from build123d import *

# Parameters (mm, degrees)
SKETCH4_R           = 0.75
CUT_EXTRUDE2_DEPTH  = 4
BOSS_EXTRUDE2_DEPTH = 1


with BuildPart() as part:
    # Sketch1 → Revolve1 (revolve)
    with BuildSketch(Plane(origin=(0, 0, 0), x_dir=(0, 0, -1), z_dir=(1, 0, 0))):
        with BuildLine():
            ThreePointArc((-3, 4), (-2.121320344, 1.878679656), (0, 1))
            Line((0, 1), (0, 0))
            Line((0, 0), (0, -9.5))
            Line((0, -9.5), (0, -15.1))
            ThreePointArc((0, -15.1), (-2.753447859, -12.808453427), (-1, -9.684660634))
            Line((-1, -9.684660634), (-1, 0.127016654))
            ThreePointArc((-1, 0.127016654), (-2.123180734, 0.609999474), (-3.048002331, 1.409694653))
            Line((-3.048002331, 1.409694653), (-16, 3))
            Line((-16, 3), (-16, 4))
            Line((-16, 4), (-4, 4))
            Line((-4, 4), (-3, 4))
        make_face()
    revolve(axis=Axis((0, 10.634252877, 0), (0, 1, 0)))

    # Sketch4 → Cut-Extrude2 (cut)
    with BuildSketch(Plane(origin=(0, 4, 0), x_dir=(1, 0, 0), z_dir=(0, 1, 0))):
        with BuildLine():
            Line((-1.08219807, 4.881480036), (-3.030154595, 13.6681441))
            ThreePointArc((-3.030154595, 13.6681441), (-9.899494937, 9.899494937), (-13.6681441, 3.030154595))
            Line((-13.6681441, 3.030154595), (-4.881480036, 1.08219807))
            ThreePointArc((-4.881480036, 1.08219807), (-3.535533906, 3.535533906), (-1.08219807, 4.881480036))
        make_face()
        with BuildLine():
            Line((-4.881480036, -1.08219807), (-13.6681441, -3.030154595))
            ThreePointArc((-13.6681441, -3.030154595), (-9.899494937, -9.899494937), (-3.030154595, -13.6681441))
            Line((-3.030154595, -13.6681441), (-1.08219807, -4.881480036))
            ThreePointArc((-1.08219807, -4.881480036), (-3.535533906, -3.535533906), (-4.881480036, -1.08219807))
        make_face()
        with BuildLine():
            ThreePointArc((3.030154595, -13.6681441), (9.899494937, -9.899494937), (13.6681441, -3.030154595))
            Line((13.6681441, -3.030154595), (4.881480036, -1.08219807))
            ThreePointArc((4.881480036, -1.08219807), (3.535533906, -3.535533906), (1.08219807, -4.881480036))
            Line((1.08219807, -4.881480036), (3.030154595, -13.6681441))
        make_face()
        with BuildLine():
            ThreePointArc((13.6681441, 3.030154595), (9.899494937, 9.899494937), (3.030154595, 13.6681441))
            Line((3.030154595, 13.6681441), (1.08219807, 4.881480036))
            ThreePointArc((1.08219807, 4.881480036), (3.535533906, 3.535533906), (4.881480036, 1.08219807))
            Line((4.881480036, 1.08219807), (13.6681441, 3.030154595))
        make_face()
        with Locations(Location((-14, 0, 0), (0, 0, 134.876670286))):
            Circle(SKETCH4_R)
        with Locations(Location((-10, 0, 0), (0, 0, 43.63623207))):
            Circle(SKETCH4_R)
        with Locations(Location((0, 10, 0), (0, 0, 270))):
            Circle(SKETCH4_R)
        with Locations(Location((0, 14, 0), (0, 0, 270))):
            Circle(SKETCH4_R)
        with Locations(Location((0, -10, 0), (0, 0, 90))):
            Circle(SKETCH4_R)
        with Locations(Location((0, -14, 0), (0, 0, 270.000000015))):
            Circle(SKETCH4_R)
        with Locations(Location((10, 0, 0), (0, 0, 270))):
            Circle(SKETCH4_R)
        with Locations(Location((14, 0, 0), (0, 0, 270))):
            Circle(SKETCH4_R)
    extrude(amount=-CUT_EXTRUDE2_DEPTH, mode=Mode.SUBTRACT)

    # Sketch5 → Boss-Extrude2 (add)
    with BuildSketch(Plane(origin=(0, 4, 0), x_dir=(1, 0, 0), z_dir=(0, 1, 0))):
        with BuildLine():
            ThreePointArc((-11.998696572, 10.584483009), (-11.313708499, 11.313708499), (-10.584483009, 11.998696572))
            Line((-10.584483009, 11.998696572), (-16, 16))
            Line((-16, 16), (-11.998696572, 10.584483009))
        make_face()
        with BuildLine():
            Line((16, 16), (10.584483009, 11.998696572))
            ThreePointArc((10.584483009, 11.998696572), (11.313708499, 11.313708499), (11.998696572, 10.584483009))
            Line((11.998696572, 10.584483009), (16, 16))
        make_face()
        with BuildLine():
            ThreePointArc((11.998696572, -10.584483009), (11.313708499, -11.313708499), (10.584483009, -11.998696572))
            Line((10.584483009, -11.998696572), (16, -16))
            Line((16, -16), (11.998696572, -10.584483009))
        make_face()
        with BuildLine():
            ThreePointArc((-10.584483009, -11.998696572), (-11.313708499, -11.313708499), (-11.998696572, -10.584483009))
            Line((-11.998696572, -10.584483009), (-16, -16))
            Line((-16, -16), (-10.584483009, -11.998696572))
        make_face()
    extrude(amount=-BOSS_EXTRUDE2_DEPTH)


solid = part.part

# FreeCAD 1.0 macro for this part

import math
import FreeCAD as App
import Part
import Sketcher
from FreeCAD import Vector
Q = App.Units.Quantity

doc = App.newDocument("Part")
body = doc.addObject("PartDesign::Body", "Body")

sketch1 = doc.addObject("Sketcher::SketchObject", "Sketch")
body.addObject(sketch1)
sketch1.AttachmentSupport = (doc.YZ_Plane, [""])
sketch1.MapMode = "FlatFace"
sketch1.addGeometry(Part.ArcOfCircle(Part.Circle(Vector(4, 0, 0), Vector(0, 0, 1), 3), math.radians(90), math.radians(180)), False)
sketch1.addGeometry(Part.LineSegment(Vector(4, 3, 0), Vector(4, 16, 0)), False)
sketch1.addGeometry(Part.LineSegment(Vector(4, 16, 0), Vector(3, 16, 0)), False)
sketch1.addGeometry(Part.LineSegment(Vector(3, 16, 0), Vector(1.409695, 3.048002, 0)), False)
sketch1.addGeometry(Part.ArcOfCircle(Part.Circle(Vector(4, 0, 0), Vector(0, 0, 1), 4), math.radians(130.359116), math.radians(165.522488)), False)
sketch1.addGeometry(Part.LineSegment(Vector(0.127017, 1, 0), Vector(-9.684661, 1, 0)), False)
sketch1.addGeometry(Part.ArcOfCircle(Part.Circle(Vector(-12.3, 0, 0), Vector(0, 0, 1), 2.8), math.radians(20.924832), math.radians(180)), False)
sketch1.addGeometry(Part.LineSegment(Vector(-15.1, 0, 0), Vector(1, 0, 0)), False)
sketch1.addConstraint(Sketcher.Constraint("Coincident", 0, 1, 1, 1))
sketch1.addConstraint(Sketcher.Constraint("Coincident", 1, 2, 2, 1))
sketch1.addConstraint(Sketcher.Constraint("Coincident", 2, 2, 3, 1))
sketch1.addConstraint(Sketcher.Constraint("Coincident", 3, 2, 4, 1))
sketch1.addConstraint(Sketcher.Constraint("Coincident", 4, 2, 5, 1))
sketch1.addConstraint(Sketcher.Constraint("Coincident", 5, 2, 6, 1))
sketch1.addConstraint(Sketcher.Constraint("Coincident", 6, 2, 7, 1))
sketch1.addConstraint(Sketcher.Constraint("Coincident", 7, 2, 0, 2))
sketch1.addConstraint(Sketcher.Constraint("Vertical", 1))
sketch1.addConstraint(Sketcher.Constraint("Horizontal", 2))
sketch1.addConstraint(Sketcher.Constraint("Horizontal", 5))
sketch1.addConstraint(Sketcher.Constraint("Horizontal", 7))
sketch1.addConstraint(Sketcher.Constraint("Coincident", 4, 3, 0, 3))
sketch1.addConstraint(Sketcher.Constraint("PointOnObject", 0, 3, -1))
sketch1.addConstraint(Sketcher.Constraint("PointOnObject", 6, 3, -1))
sketch1.addConstraint(Sketcher.Constraint("PointOnObject", 6, 2, -1))
sketch1.addConstraint(Sketcher.Constraint("Vertical", 4, 3, 0, 1))
sketch1.addConstraint(Sketcher.Constraint("Radius", 0, 3.0))
sketch1.addConstraint(Sketcher.Constraint("Radius", 4, 4.0))
sketch1.addConstraint(Sketcher.Constraint("Radius", 6, 2.8))
sketch1.addConstraint(Sketcher.Constraint("DistanceX", 2, 2, 2, 1, 1.0))
sketch1.addConstraint(Sketcher.Constraint("DistanceY", 1, 1, 1, 2, 13.0))
sketch1.addConstraint(Sketcher.Constraint("Angle", 3, Q("-97 deg")))
sketch1.addConstraint(Sketcher.Constraint("DistanceX", 7, 1, 7, 2, 16.1))
sketch1.addConstraint(Sketcher.Constraint("DistanceX", -1, 1, 0, 3, 4.0))
sketch1.addConstraint(Sketcher.Constraint("DistanceY", -1, 1, 4, 2, 1.0))
revolution = doc.addObject("PartDesign::Revolution", "Revolution")
body.addObject(revolution)
revolution.Profile = sketch1
revolution.ReferenceAxis = (sketch1, ["H_Axis"])
revolution.Angle = 360

sketch2 = doc.addObject("Sketcher::SketchObject", "Sketch001")
body.addObject(sketch2)
sketch2.AttachmentSupport = (doc.XZ_Plane, [""])
sketch2.MapMode = "FlatFace"
sketch2.AttachmentOffset = App.Placement(Vector(0, 0, -4), App.Rotation())
sketch2.addGeometry(Part.LineSegment(Vector(-1.082198, -4.88148, 0), Vector(-3.030155, -13.668144, 0)), False)
sketch2.addGeometry(Part.ArcOfCircle(Part.Circle(Vector(0, 0, 0), Vector(0, 0, 1), 14), math.radians(-167.5), math.radians(-102.5)), False)
sketch2.addGeometry(Part.LineSegment(Vector(-13.668144, -3.030155, 0), Vector(-4.88148, -1.082198, 0)), False)
sketch2.addGeometry(Part.ArcOfCircle(Part.Circle(Vector(0, 0, 0), Vector(0, 0, 1), 5), math.radians(-167.5), math.radians(-102.5)), False)
sketch2.addGeometry(Part.LineSegment(Vector(-4.88148, 1.082198, 0), Vector(-13.668144, 3.030155, 0)), False)
sketch2.addGeometry(Part.ArcOfCircle(Part.Circle(Vector(0, 0, 0), Vector(0, 0, 1), 14), math.radians(102.5), math.radians(167.5)), False)
sketch2.addGeometry(Part.LineSegment(Vector(-3.030155, 13.668144, 0), Vector(-1.082198, 4.88148, 0)), False)
sketch2.addGeometry(Part.ArcOfCircle(Part.Circle(Vector(0, 0, 0), Vector(0, 0, 1), 5), math.radians(102.5), math.radians(167.5)), False)
sketch2.addGeometry(Part.ArcOfCircle(Part.Circle(Vector(0, 0, 0), Vector(0, 0, 1), 14), math.radians(12.5), math.radians(77.5)), False)
sketch2.addGeometry(Part.LineSegment(Vector(13.668144, 3.030155, 0), Vector(4.88148, 1.082198, 0)), False)
sketch2.addGeometry(Part.ArcOfCircle(Part.Circle(Vector(0, 0, 0), Vector(0, 0, 1), 5), math.radians(12.5), math.radians(77.5)), False)
sketch2.addGeometry(Part.LineSegment(Vector(1.082198, 4.88148, 0), Vector(3.030155, 13.668144, 0)), False)
sketch2.addGeometry(Part.ArcOfCircle(Part.Circle(Vector(0, 0, 0), Vector(0, 0, 1), 14), math.radians(-77.5), math.radians(-12.5)), False)
sketch2.addGeometry(Part.LineSegment(Vector(3.030155, -13.668144, 0), Vector(1.082198, -4.88148, 0)), False)
sketch2.addGeometry(Part.ArcOfCircle(Part.Circle(Vector(0, 0, 0), Vector(0, 0, 1), 5), math.radians(-77.5), math.radians(-12.5)), False)
sketch2.addGeometry(Part.LineSegment(Vector(4.88148, -1.082198, 0), Vector(13.668144, -3.030155, 0)), False)
sketch2.addGeometry(Part.Circle(Vector(-14, 0, 0), Vector(0, 0, 1), 0.75), False)
sketch2.addGeometry(Part.Circle(Vector(-10, 0, 0), Vector(0, 0, 1), 0.75), False)
sketch2.addGeometry(Part.Circle(Vector(0, -10, 0), Vector(0, 0, 1), 0.75), False)
sketch2.addGeometry(Part.Circle(Vector(0, -14, 0), Vector(0, 0, 1), 0.75), False)
sketch2.addGeometry(Part.Circle(Vector(0, 10, 0), Vector(0, 0, 1), 0.75), False)
sketch2.addGeometry(Part.Circle(Vector(0, 14, 0), Vector(0, 0, 1), 0.75), False)
sketch2.addGeometry(Part.Circle(Vector(10, 0, 0), Vector(0, 0, 1), 0.75), False)
sketch2.addGeometry(Part.Circle(Vector(14, 0, 0), Vector(0, 0, 1), 0.75), False)
sketch2.addConstraint(Sketcher.Constraint("Coincident", 0, 2, 1, 2))
sketch2.addConstraint(Sketcher.Constraint("Coincident", 1, 1, 2, 1))
sketch2.addConstraint(Sketcher.Constraint("Coincident", 2, 2, 3, 1))
sketch2.addConstraint(Sketcher.Constraint("Coincident", 3, 2, 0, 1))
sketch2.addConstraint(Sketcher.Constraint("Coincident", 4, 2, 5, 2))
sketch2.addConstraint(Sketcher.Constraint("Coincident", 5, 1, 6, 1))
sketch2.addConstraint(Sketcher.Constraint("Coincident", 6, 2, 7, 1))
sketch2.addConstraint(Sketcher.Constraint("Coincident", 7, 2, 4, 1))
sketch2.addConstraint(Sketcher.Constraint("Coincident", 8, 1, 9, 1))
sketch2.addConstraint(Sketcher.Constraint("Coincident", 9, 2, 10, 1))
sketch2.addConstraint(Sketcher.Constraint("Coincident", 10, 2, 11, 1))
sketch2.addConstraint(Sketcher.Constraint("Coincident", 11, 2, 8, 2))
sketch2.addConstraint(Sketcher.Constraint("Coincident", 12, 1, 13, 1))
sketch2.addConstraint(Sketcher.Constraint("Coincident", 13, 2, 14, 1))
sketch2.addConstraint(Sketcher.Constraint("Coincident", 14, 2, 15, 1))
sketch2.addConstraint(Sketcher.Constraint("Coincident", 15, 2, 12, 2))
sketch2.addConstraint(Sketcher.Constraint("Coincident", 1, 3, -1, 1))
sketch2.addConstraint(Sketcher.Constraint("Coincident", 3, 3, -1, 1))
sketch2.addConstraint(Sketcher.Constraint("Coincident", 5, 3, -1, 1))
sketch2.addConstraint(Sketcher.Constraint("Coincident", 7, 3, -1, 1))
sketch2.addConstraint(Sketcher.Constraint("Coincident", 8, 3, -1, 1))
sketch2.addConstraint(Sketcher.Constraint("Coincident", 10, 3, -1, 1))
sketch2.addConstraint(Sketcher.Constraint("Coincident", 12, 3, -1, 1))
sketch2.addConstraint(Sketcher.Constraint("Coincident", 14, 3, -1, 1))
sketch2.addConstraint(Sketcher.Constraint("Equal", 1, 5))
sketch2.addConstraint(Sketcher.Constraint("Equal", 3, 7))
sketch2.addConstraint(Sketcher.Constraint("Equal", 5, 8))
sketch2.addConstraint(Sketcher.Constraint("Equal", 7, 10))
sketch2.addConstraint(Sketcher.Constraint("Equal", 8, 12))
sketch2.addConstraint(Sketcher.Constraint("Equal", 10, 14))
sketch2.addConstraint(Sketcher.Constraint("Equal", 16, 17))
sketch2.addConstraint(Sketcher.Constraint("Equal", 17, 18))
sketch2.addConstraint(Sketcher.Constraint("Equal", 18, 19))
sketch2.addConstraint(Sketcher.Constraint("Equal", 19, 20))
sketch2.addConstraint(Sketcher.Constraint("Equal", 20, 21))
sketch2.addConstraint(Sketcher.Constraint("Equal", 21, 22))
sketch2.addConstraint(Sketcher.Constraint("Equal", 22, 23))
sketch2.addConstraint(Sketcher.Constraint("Symmetric", 18, 3, 20, 3, -1, 1))
sketch2.addConstraint(Sketcher.Constraint("Symmetric", 19, 3, 21, 3, -1, 1))
sketch2.addConstraint(Sketcher.Constraint("Symmetric", 17, 3, 22, 3, -1, 1))
sketch2.addConstraint(Sketcher.Constraint("Symmetric", 16, 3, 23, 3, -1, 1))
sketch2.addConstraint(Sketcher.Constraint("PointOnObject", 16, 3, -1))
sketch2.addConstraint(Sketcher.Constraint("PointOnObject", 17, 3, -1))
sketch2.addConstraint(Sketcher.Constraint("PointOnObject", 18, 3, -2))
sketch2.addConstraint(Sketcher.Constraint("PointOnObject", 19, 3, -2))
sketch2.addConstraint(Sketcher.Constraint("Perpendicular", 0, 4))
sketch2.addConstraint(Sketcher.Constraint("Perpendicular", 2, 6))
sketch2.addConstraint(Sketcher.Constraint("Perpendicular", 6, 9))
sketch2.addConstraint(Sketcher.Constraint("Perpendicular", 4, 11))
sketch2.addConstraint(Sketcher.Constraint("Perpendicular", 9, 13))
sketch2.addConstraint(Sketcher.Constraint("Perpendicular", 11, 15))
sketch2.addConstraint(Sketcher.Constraint("Horizontal", 4, 2, 8, 1))
sketch2.addConstraint(Sketcher.Constraint("Horizontal", 7, 2, 9, 2))
sketch2.addConstraint(Sketcher.Constraint("Horizontal", 6, 2, 10, 2))
sketch2.addConstraint(Sketcher.Constraint("Horizontal", 0, 2, 12, 1))
sketch2.addConstraint(Sketcher.Constraint("Horizontal", 2, 2, 14, 2))
sketch2.addConstraint(Sketcher.Constraint("Vertical", 1, 1, 4, 2))
sketch2.addConstraint(Sketcher.Constraint("Vertical", 0, 2, 5, 1))
sketch2.addConstraint(Sketcher.Constraint("Radius", 1, 14.0))
sketch2.addConstraint(Sketcher.Constraint("Radius", 3, 5.0))
sketch2.addConstraint(Sketcher.Constraint("Diameter", 16, 1.5))
sketch2.addConstraint(Sketcher.Constraint("DistanceX", 16, 3, -1, 1, 14.0))
sketch2.addConstraint(Sketcher.Constraint("DistanceX", 17, 3, -1, 1, 10.0))
sketch2.addConstraint(Sketcher.Constraint("DistanceY", 18, 3, -1, 1, 10.0))
sketch2.addConstraint(Sketcher.Constraint("DistanceY", 19, 3, -1, 1, 14.0))
sketch2.addConstraint(Sketcher.Constraint("Angle", 0, Q("-102.5 deg")))
sketch2.addConstraint(Sketcher.Constraint("DistanceY", 2, 2, -1, 1, 1.082198))
sketch2.addConstraint(Sketcher.Constraint("DistanceX", 3, 2, -1, 1, 1.082198))
pocket1 = doc.addObject("PartDesign::Pocket", "Pocket")
body.addObject(pocket1)
pocket1.Profile = sketch2
pocket1.Length = 4
pocket1.Reversed = True

sketch3 = doc.addObject("Sketcher::SketchObject", "Sketch002")
body.addObject(sketch3)
sketch3.AttachmentSupport = (doc.XZ_Plane, [""])
sketch3.MapMode = "FlatFace"
sketch3.AttachmentOffset = App.Placement(Vector(0, 0, -4), App.Rotation())
sketch3.addGeometry(Part.ArcOfCircle(Part.Circle(Vector(0, 0, 0), Vector(0, 0, 1), 16), math.radians(-138.583322), math.radians(-131.416678)), False)
sketch3.addGeometry(Part.LineSegment(Vector(-10.584483, -11.998697, 0), Vector(-16, -16, 0)), False)
sketch3.addGeometry(Part.LineSegment(Vector(-16, -16, 0), Vector(-11.998697, -10.584483, 0)), False)
sketch3.addGeometry(Part.LineSegment(Vector(16, -16, 0), Vector(10.584483, -11.998697, 0)), False)
sketch3.addGeometry(Part.ArcOfCircle(Part.Circle(Vector(0, 0, 0), Vector(0, 0, 1), 16), math.radians(-48.583322), math.radians(-41.416678)), False)
sketch3.addGeometry(Part.LineSegment(Vector(11.998697, -10.584483, 0), Vector(16, -16, 0)), False)
sketch3.addGeometry(Part.ArcOfCircle(Part.Circle(Vector(0, 0, 0), Vector(0, 0, 1), 16), math.radians(41.416678), math.radians(48.583322)), False)
sketch3.addGeometry(Part.LineSegment(Vector(10.584483, 11.998697, 0), Vector(16, 16, 0)), False)
sketch3.addGeometry(Part.LineSegment(Vector(16, 16, 0), Vector(11.998697, 10.584483, 0)), False)
sketch3.addGeometry(Part.ArcOfCircle(Part.Circle(Vector(0, 0, 0), Vector(0, 0, 1), 16), math.radians(131.416678), math.radians(138.583322)), False)
sketch3.addGeometry(Part.LineSegment(Vector(-11.998697, 10.584483, 0), Vector(-16, 16, 0)), False)
sketch3.addGeometry(Part.LineSegment(Vector(-16, 16, 0), Vector(-10.584483, 11.998697, 0)), False)
sketch3.addConstraint(Sketcher.Constraint("Coincident", 0, 2, 1, 1))
sketch3.addConstraint(Sketcher.Constraint("Coincident", 1, 2, 2, 1))
sketch3.addConstraint(Sketcher.Constraint("Coincident", 2, 2, 0, 1))
sketch3.addConstraint(Sketcher.Constraint("Coincident", 3, 2, 4, 1))
sketch3.addConstraint(Sketcher.Constraint("Coincident", 4, 2, 5, 1))
sketch3.addConstraint(Sketcher.Constraint("Coincident", 5, 2, 3, 1))
sketch3.addConstraint(Sketcher.Constraint("Coincident", 6, 2, 7, 1))
sketch3.addConstraint(Sketcher.Constraint("Coincident", 7, 2, 8, 1))
sketch3.addConstraint(Sketcher.Constraint("Coincident", 8, 2, 6, 1))
sketch3.addConstraint(Sketcher.Constraint("Coincident", 9, 2, 10, 1))
sketch3.addConstraint(Sketcher.Constraint("Coincident", 10, 2, 11, 1))
sketch3.addConstraint(Sketcher.Constraint("Coincident", 11, 2, 9, 1))
sketch3.addConstraint(Sketcher.Constraint("Coincident", 0, 3, -1, 1))
sketch3.addConstraint(Sketcher.Constraint("Coincident", 4, 3, -1, 1))
sketch3.addConstraint(Sketcher.Constraint("Coincident", 6, 3, -1, 1))
sketch3.addConstraint(Sketcher.Constraint("Coincident", 9, 3, -1, 1))
sketch3.addConstraint(Sketcher.Constraint("Equal", 0, 4))
sketch3.addConstraint(Sketcher.Constraint("Equal", 4, 6))
sketch3.addConstraint(Sketcher.Constraint("Equal", 6, 9))
sketch3.addConstraint(Sketcher.Constraint("Symmetric", 1, 2, 7, 2, -1, 1))
sketch3.addConstraint(Sketcher.Constraint("Symmetric", 5, 2, 10, 2, -1, 1))
sketch3.addConstraint(Sketcher.Constraint("Symmetric", 1, 2, 5, 2, -2))
sketch3.addConstraint(Sketcher.Constraint("Perpendicular", 2, 3))
sketch3.addConstraint(Sketcher.Constraint("Perpendicular", 1, 5))
sketch3.addConstraint(Sketcher.Constraint("Perpendicular", 5, 7))
sketch3.addConstraint(Sketcher.Constraint("Perpendicular", 3, 8))
sketch3.addConstraint(Sketcher.Constraint("Perpendicular", 7, 10))
sketch3.addConstraint(Sketcher.Constraint("Perpendicular", 8, 11))
sketch3.addConstraint(Sketcher.Constraint("Horizontal", 0, 2, 3, 2))
sketch3.addConstraint(Sketcher.Constraint("Equal", 1, 2))
sketch3.addConstraint(Sketcher.Constraint("Radius", 0, 16.0))
sketch3.addConstraint(Sketcher.Constraint("DistanceX", 1, 2, -1, 1, 16.0))
sketch3.addConstraint(Sketcher.Constraint("Distance", 1, 6.733369))
pad1 = doc.addObject("PartDesign::Pad", "Pad")
body.addObject(pad1)
pad1.Profile = sketch3
pad1.Length = 1

doc.recompute()
